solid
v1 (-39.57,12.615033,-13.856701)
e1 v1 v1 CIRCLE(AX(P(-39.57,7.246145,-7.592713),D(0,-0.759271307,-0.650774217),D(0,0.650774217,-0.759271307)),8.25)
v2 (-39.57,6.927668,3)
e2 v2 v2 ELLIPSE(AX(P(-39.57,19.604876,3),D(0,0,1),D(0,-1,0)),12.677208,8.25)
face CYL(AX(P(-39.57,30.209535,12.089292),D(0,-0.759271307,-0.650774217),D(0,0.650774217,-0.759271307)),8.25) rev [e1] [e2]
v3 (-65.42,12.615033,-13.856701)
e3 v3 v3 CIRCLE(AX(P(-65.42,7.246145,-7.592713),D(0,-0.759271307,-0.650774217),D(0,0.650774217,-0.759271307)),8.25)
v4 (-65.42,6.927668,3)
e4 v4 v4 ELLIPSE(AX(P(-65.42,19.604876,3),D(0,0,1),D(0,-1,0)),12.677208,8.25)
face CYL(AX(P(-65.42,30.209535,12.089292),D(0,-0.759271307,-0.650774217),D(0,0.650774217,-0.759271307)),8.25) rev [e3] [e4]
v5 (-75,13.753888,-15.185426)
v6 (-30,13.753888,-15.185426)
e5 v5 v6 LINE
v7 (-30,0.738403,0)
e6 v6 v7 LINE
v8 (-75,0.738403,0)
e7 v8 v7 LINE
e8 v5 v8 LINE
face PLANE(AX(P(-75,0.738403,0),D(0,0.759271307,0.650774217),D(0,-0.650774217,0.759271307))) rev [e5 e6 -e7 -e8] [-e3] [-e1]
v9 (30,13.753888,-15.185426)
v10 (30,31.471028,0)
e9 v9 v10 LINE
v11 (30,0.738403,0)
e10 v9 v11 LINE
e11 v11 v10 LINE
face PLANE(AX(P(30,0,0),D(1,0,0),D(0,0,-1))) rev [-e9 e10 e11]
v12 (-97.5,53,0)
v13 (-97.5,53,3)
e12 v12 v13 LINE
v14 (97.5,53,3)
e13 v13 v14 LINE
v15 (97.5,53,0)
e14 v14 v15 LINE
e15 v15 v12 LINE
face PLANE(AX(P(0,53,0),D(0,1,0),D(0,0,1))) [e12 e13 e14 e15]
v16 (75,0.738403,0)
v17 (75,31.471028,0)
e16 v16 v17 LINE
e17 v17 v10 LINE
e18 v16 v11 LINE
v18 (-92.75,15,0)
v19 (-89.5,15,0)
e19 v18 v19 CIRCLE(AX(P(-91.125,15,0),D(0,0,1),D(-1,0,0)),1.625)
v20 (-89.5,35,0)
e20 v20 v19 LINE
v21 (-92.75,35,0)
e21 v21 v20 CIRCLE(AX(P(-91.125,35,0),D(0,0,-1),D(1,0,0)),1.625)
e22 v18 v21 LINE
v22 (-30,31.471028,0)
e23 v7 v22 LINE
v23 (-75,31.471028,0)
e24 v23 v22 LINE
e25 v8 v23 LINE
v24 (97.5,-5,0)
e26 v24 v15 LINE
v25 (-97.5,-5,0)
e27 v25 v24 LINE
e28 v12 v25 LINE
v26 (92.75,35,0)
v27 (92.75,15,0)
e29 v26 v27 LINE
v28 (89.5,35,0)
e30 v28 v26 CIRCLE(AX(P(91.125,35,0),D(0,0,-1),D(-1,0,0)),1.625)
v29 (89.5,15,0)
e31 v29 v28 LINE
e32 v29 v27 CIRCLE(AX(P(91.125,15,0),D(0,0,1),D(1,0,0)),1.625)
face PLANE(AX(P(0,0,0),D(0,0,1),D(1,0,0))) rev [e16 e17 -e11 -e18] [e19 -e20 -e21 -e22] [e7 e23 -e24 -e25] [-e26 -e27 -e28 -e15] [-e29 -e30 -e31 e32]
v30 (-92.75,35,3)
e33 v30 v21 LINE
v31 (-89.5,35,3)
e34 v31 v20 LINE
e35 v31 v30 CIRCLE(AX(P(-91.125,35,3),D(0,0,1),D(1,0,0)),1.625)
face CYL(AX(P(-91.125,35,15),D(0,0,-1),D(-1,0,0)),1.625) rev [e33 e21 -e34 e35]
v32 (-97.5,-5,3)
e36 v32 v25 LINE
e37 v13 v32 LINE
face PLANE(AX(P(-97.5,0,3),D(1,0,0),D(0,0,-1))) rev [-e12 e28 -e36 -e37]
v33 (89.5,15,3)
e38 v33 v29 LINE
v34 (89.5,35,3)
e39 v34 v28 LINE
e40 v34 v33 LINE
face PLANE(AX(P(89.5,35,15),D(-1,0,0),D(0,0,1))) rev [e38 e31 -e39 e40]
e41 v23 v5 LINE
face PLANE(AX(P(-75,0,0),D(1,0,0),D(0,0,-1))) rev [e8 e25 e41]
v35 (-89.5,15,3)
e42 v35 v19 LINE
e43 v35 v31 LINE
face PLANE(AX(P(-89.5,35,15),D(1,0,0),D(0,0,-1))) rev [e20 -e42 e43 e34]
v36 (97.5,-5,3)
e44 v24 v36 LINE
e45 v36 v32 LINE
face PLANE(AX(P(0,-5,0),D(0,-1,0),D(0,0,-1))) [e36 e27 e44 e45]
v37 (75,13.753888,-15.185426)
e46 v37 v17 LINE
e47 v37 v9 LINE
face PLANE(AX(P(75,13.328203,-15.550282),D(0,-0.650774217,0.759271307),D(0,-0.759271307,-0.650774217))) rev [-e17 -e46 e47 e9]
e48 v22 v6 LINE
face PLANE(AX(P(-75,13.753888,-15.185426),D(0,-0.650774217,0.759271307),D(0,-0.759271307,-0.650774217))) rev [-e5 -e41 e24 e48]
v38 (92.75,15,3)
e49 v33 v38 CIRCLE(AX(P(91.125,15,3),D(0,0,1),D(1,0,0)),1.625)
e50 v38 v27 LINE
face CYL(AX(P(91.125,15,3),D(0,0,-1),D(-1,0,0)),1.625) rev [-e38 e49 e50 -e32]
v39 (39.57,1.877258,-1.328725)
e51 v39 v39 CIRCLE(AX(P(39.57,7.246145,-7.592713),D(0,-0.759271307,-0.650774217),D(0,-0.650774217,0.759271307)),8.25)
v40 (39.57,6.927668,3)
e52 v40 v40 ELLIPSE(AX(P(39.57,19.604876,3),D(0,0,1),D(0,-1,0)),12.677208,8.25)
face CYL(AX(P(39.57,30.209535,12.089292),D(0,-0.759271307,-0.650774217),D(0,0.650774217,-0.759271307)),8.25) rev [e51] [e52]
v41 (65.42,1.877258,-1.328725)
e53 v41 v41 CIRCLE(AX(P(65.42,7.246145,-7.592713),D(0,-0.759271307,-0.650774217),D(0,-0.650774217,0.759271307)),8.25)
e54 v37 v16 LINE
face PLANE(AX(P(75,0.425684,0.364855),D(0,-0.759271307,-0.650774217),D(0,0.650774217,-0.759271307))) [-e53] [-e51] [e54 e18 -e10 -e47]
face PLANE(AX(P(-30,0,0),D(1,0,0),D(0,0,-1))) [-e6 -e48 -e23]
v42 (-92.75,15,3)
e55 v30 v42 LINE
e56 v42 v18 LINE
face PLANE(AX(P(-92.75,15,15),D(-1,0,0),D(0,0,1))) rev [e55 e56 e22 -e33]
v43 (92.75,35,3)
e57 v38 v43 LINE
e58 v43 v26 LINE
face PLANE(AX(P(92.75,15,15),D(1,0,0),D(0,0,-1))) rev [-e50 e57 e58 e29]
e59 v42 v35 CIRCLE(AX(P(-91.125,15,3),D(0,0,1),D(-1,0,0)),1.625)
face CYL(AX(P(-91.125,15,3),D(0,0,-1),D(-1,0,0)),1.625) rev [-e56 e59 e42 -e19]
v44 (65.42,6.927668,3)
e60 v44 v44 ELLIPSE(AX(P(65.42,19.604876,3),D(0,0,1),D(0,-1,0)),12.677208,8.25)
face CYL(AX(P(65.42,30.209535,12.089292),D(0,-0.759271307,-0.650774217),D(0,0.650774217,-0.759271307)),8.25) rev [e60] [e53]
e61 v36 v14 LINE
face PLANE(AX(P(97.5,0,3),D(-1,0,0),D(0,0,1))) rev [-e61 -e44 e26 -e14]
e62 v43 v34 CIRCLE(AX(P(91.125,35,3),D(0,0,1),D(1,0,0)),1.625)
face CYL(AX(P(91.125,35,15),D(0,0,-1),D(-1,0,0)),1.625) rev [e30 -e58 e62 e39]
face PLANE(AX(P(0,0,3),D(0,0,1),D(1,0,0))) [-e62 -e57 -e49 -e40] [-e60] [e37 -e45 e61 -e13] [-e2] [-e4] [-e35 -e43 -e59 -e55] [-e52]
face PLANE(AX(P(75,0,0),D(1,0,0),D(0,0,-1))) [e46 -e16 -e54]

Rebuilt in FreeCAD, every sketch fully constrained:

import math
import FreeCAD as App
import Part
import Sketcher
from FreeCAD import Vector
Q = App.Units.Quantity

doc = App.newDocument("Part")
body = doc.addObject("PartDesign::Body", "Body")

sketch1 = body.newObject("Sketcher::SketchObject", "Sketch")
sketch1.AttachmentSupport = (doc.getObject("XY_Plane"), [""])
sketch1.MapMode = "FlatFace"
sketch1.addGeometry(Part.LineSegment(Vector(-97.5, 38, 0), Vector(-97.5, 0, 0)), False)
sketch1.addGeometry(Part.LineSegment(Vector(-97.5, 0, 0), Vector(97.5, 0, 0)), False)
sketch1.addGeometry(Part.LineSegment(Vector(97.5, 0, 0), Vector(97.5, 38, 0)), False)
sketch1.addGeometry(Part.LineSegment(Vector(97.5, 38, 0), Vector(-97.5, 38, 0)), False)
sketch1.addGeometry(Part.Circle(Vector(-91.1, 15, 0), Vector(0, 0, 1), 1.6), False)
sketch1.addGeometry(Part.Circle(Vector(91.1, 15, 0), Vector(0, 0, 1), 1.6), False)
sketch1.addConstraint(Sketcher.Constraint("Coincident", 0, 2, 1, 1))
sketch1.addConstraint(Sketcher.Constraint("Coincident", 1, 2, 2, 1))
sketch1.addConstraint(Sketcher.Constraint("Coincident", 2, 2, 3, 1))
sketch1.addConstraint(Sketcher.Constraint("Coincident", 3, 2, 0, 1))
sketch1.addConstraint(Sketcher.Constraint("Vertical", 0))
sketch1.addConstraint(Sketcher.Constraint("Horizontal", 1))
sketch1.addConstraint(Sketcher.Constraint("Vertical", 2))
sketch1.addConstraint(Sketcher.Constraint("Horizontal", 3))
sketch1.addConstraint(Sketcher.Constraint("Equal", 4, 5))
sketch1.addConstraint(Sketcher.Constraint("Symmetric", 0, 2, 1, 2, -1, 1))
sketch1.addConstraint(Sketcher.Constraint("Symmetric", 4, 3, 5, 3, -2))
sketch1.addConstraint(Sketcher.Constraint("Diameter", 4, 3.25))
sketch1.addConstraint(Sketcher.Constraint("DistanceX", 1, 1, 1, 2, 195.0))
sketch1.addConstraint(Sketcher.Constraint("DistanceY", 0, 2, 0, 1, 38.0))
sketch1.addConstraint(Sketcher.Constraint("DistanceY", -1, 1, 4, 3, 15.0))
sketch1.addConstraint(Sketcher.Constraint("DistanceX", 4, 3, 5, 3, 182.25))
pad1 = body.newObject("PartDesign::Pad", "Pad")
pad1.Profile = sketch1
pad1.Length = 3

sketch2 = body.newObject("Sketcher::SketchObject", "Sketch001")
sketch2.AttachmentSupport = (doc.getObject("YZ_Plane"), [""])
sketch2.MapMode = "FlatFace"
sketch2.AttachmentOffset = App.Placement(Vector(0, 0, 30), App.Rotation())
sketch2.addGeometry(Part.LineSegment(Vector(0.7, 0, 0), Vector(3.7, -3.4, 0)), False)
sketch2.addGeometry(Part.LineSegment(Vector(3.7, -3.4, 0), Vector(13.8, -15.2, 0)), False)
sketch2.addGeometry(Part.LineSegment(Vector(13.8, -15.2, 0), Vector(31.5, 0, 0)), False)
sketch2.addGeometry(Part.LineSegment(Vector(31.5, 0, 0), Vector(0.7, 0, 0)), False)
sketch2.addConstraint(Sketcher.Constraint("Coincident", 0, 2, 1, 1))
sketch2.addConstraint(Sketcher.Constraint("Coincident", 1, 2, 2, 1))
sketch2.addConstraint(Sketcher.Constraint("Coincident", 2, 2, 3, 1))
sketch2.addConstraint(Sketcher.Constraint("Coincident", 3, 2, 0, 1))
sketch2.addConstraint(Sketcher.Constraint("Horizontal", 3))
sketch2.addConstraint(Sketcher.Constraint("PointOnObject", 2, 2, -1))
sketch2.addConstraint(Sketcher.Constraint("Parallel", 0, 1))
sketch2.addConstraint(Sketcher.Constraint("Perpendicular", 1, 2))
sketch2.addConstraint(Sketcher.Constraint("Angle", 0, Q("-49.4 deg")))
sketch2.addConstraint(Sketcher.Constraint("Distance", 2, 23.3344))
sketch2.addConstraint(Sketcher.Constraint("DistanceX", -1, 1, 2, 2, 31.471028))
sketch2.addConstraint(Sketcher.Constraint("DistanceX", 0, 2, 1, 2, 10.075991))
pad2 = body.newObject("PartDesign::Pad", "Pad001")
pad2.Profile = sketch2
pad2.Length = 45

sketch3 = body.newObject("Sketcher::SketchObject", "Sketch002")
sketch3.AttachmentSupport = (doc.getObject("YZ_Plane"), [""])
sketch3.MapMode = "FlatFace"
sketch3.AttachmentOffset = App.Placement(Vector(0, 0, -30), App.Rotation())
sketch3.addGeometry(Part.LineSegment(Vector(14, -15, 0), Vector(1, 0, 0)), False)
sketch3.addGeometry(Part.LineSegment(Vector(1, 0, 0), Vector(31, 0, 0)), False)
sketch3.addGeometry(Part.LineSegment(Vector(31, 0, 0), Vector(14, -15, 0)), False)
sketch3.addConstraint(Sketcher.Constraint("Coincident", 0, 2, 1, 1))
sketch3.addConstraint(Sketcher.Constraint("Coincident", 1, 2, 2, 1))
sketch3.addConstraint(Sketcher.Constraint("Coincident", 2, 2, 0, 1))
sketch3.addConstraint(Sketcher.Constraint("Horizontal", 1))
sketch3.addConstraint(Sketcher.Constraint("PointOnObject", 0, 2, -1))
sketch3.addConstraint(Sketcher.Constraint("Perpendicular", 0, 2))
sketch3.addConstraint(Sketcher.Constraint("Distance", 0, 20.0))
sketch3.addConstraint(Sketcher.Constraint("Angle", 0, Q("130.6 deg")))
sketch3.addConstraint(Sketcher.Constraint("DistanceX", -1, 1, 1, 2, 31.471028))
pad3 = body.newObject("PartDesign::Pad", "Pad002")
pad3.Profile = sketch3
pad3.Length = 45
pad3.Reversed = True

sketch4 = body.newObject("Sketcher::SketchObject", "Sketch003")
sketch4.AttachmentSupport = (doc.getObject("XZ_Plane"), [""])
sketch4.MapMode = "FlatFace"
sketch4.addGeometry(Part.LineSegment(Vector(-97.5, 3, 0), Vector(-97.5, 0, 0)), False)
sketch4.addGeometry(Part.LineSegment(Vector(-97.5, 0, 0), Vector(97.5, 0, 0)), False)
sketch4.addGeometry(Part.LineSegment(Vector(97.5, 0, 0), Vector(97.5, 3, 0)), False)
sketch4.addGeometry(Part.LineSegment(Vector(97.5, 3, 0), Vector(-97.5, 3, 0)), False)
sketch4.addConstraint(Sketcher.Constraint("Coincident", 0, 2, 1, 1))
sketch4.addConstraint(Sketcher.Constraint("Coincident", 1, 2, 2, 1))
sketch4.addConstraint(Sketcher.Constraint("Coincident", 2, 2, 3, 1))
sketch4.addConstraint(Sketcher.Constraint("Coincident", 3, 2, 0, 1))
sketch4.addConstraint(Sketcher.Constraint("Vertical", 0))
sketch4.addConstraint(Sketcher.Constraint("Horizontal", 1))
sketch4.addConstraint(Sketcher.Constraint("Vertical", 2))
sketch4.addConstraint(Sketcher.Constraint("Horizontal", 3))
sketch4.addConstraint(Sketcher.Constraint("Symmetric", 0, 2, 1, 2, -1, 1))
sketch4.addConstraint(Sketcher.Constraint("DistanceX", 1, 1, 1, 2, 195.0))
sketch4.addConstraint(Sketcher.Constraint("DistanceY", 0, 2, 0, 1, 3.0))
pad4 = body.newObject("PartDesign::Pad", "Pad003")
pad4.Profile = sketch4
pad4.Length = 5

sketch5 = body.newObject("Sketcher::SketchObject", "Sketch004")
sketch5.Placement = App.Placement(Vector(0, 0.425684, 0.364855), App.Rotation(Vector(1, 0, 0), Vector(0, -0.650774217, 0.759271307), Vector(0, -0.759271307, -0.650774217), "ZXY"))
sketch5.addGeometry(Part.Circle(Vector(-65, -10, 0), Vector(0, 0, 1), 8), False)
sketch5.addGeometry(Part.Circle(Vector(-40, -10, 0), Vector(0, 0, 1), 8), False)
sketch5.addGeometry(Part.Circle(Vector(40, -10, 0), Vector(0, 0, 1), 8), False)
sketch5.addGeometry(Part.Circle(Vector(65, -10, 0), Vector(0, 0, 1), 8), False)
sketch5.addConstraint(Sketcher.Constraint("Equal", 0, 1))
sketch5.addConstraint(Sketcher.Constraint("Equal", 1, 2))
sketch5.addConstraint(Sketcher.Constraint("Equal", 2, 3))
sketch5.addConstraint(Sketcher.Constraint("Symmetric", 1, 3, 2, 3, -2))
sketch5.addConstraint(Sketcher.Constraint("Symmetric", 0, 3, 3, 3, -2))
sketch5.addConstraint(Sketcher.Constraint("Horizontal", 0, 3, 1, 3))
sketch5.addConstraint(Sketcher.Constraint("Diameter", 0, 16.5))
sketch5.addConstraint(Sketcher.Constraint("DistanceX", 0, 3, -1, 1, 65.42))
sketch5.addConstraint(Sketcher.Constraint("DistanceX", 1, 3, -1, 1, 39.57))
sketch5.addConstraint(Sketcher.Constraint("DistanceY", 0, 3, -1, 1, 10.480534))
pocket1 = body.newObject("PartDesign::Pocket", "Pocket")
pocket1.Profile = sketch5
pocket1.Type = "ThroughAll"

sketch6 = body.newObject("Sketcher::SketchObject", "Sketch005")
sketch6.AttachmentSupport = (doc.getObject("XZ_Plane"), [""])
sketch6.MapMode = "FlatFace"
sketch6.AttachmentOffset = App.Placement(Vector(0, 0, -38), App.Rotation())
sketch6.addGeometry(Part.LineSegment(Vector(-97.5, 0, 0), Vector(-97.5, 3, 0)), False)
sketch6.addGeometry(Part.LineSegment(Vector(-97.5, 3, 0), Vector(97.5, 3, 0)), False)
sketch6.addGeometry(Part.LineSegment(Vector(97.5, 3, 0), Vector(97.5, 0, 0)), False)
sketch6.addGeometry(Part.LineSegment(Vector(97.5, 0, 0), Vector(-97.5, 0, 0)), False)
sketch6.addConstraint(Sketcher.Constraint("Coincident", 0, 2, 1, 1))
sketch6.addConstraint(Sketcher.Constraint("Coincident", 1, 2, 2, 1))
sketch6.addConstraint(Sketcher.Constraint("Coincident", 2, 2, 3, 1))
sketch6.addConstraint(Sketcher.Constraint("Coincident", 3, 2, 0, 1))
sketch6.addConstraint(Sketcher.Constraint("Vertical", 0))
sketch6.addConstraint(Sketcher.Constraint("Horizontal", 1))
sketch6.addConstraint(Sketcher.Constraint("Vertical", 2))
sketch6.addConstraint(Sketcher.Constraint("Horizontal", 3))
sketch6.addConstraint(Sketcher.Constraint("Symmetric", 2, 2, 3, 2, -1, 1))
sketch6.addConstraint(Sketcher.Constraint("DistanceX", 1, 1, 1, 2, 195.0))
sketch6.addConstraint(Sketcher.Constraint("DistanceY", 0, 1, 0, 2, 3.0))
pad5 = body.newObject("PartDesign::Pad", "Pad004")
pad5.Profile = sketch6
pad5.Length = 15
pad5.Reversed = True

sketch7 = body.newObject("Sketcher::SketchObject", "Sketch006")
sketch7.AttachmentSupport = (doc.getObject("XY_Plane"), [""])
sketch7.MapMode = "FlatFace"
sketch7.addGeometry(Part.LineSegment(Vector(92.8, 35, 0), Vector(92.8, 15, 0)), False)
sketch7.addGeometry(Part.ArcOfCircle(Part.Circle(Vector(91.1, 15, 0), Vector(0, 0, 1), 1.6), math.radians(180), math.radians(360)), False)
sketch7.addGeometry(Part.LineSegment(Vector(89.5, 15, 0), Vector(89.5, 35, 0)), False)
sketch7.addGeometry(Part.ArcOfCircle(Part.Circle(Vector(91.1, 35, 0), Vector(0, 0, 1), 1.6), math.radians(0), math.radians(180)), False)
sketch7.addGeometry(Part.LineSegment(Vector(-89.5, 35, 0), Vector(-89.5, 15, 0)), False)
sketch7.addGeometry(Part.ArcOfCircle(Part.Circle(Vector(-91.1, 15, 0), Vector(0, 0, 1), 1.6), math.radians(180), math.radians(360)), False)
sketch7.addGeometry(Part.LineSegment(Vector(-92.8, 15, 0), Vector(-92.8, 35, 0)), False)
sketch7.addGeometry(Part.ArcOfCircle(Part.Circle(Vector(-91.1, 35, 0), Vector(0, 0, 1), 1.6), math.radians(0), math.radians(180)), False)
sketch7.addConstraint(Sketcher.Constraint("Tangent", 0, 2, 1, 2))
sketch7.addConstraint(Sketcher.Constraint("Tangent", 1, 1, 2, 1))
sketch7.addConstraint(Sketcher.Constraint("Tangent", 2, 2, 3, 2))
sketch7.addConstraint(Sketcher.Constraint("Tangent", 3, 1, 0, 1))
sketch7.addConstraint(Sketcher.Constraint("Tangent", 4, 2, 5, 2))
sketch7.addConstraint(Sketcher.Constraint("Tangent", 5, 1, 6, 1))
sketch7.addConstraint(Sketcher.Constraint("Tangent", 6, 2, 7, 2))
sketch7.addConstraint(Sketcher.Constraint("Tangent", 7, 1, 4, 1))
sketch7.addConstraint(Sketcher.Constraint("Vertical", 0))
sketch7.addConstraint(Sketcher.Constraint("Vertical", 2))
sketch7.addConstraint(Sketcher.Constraint("Vertical", 4))
sketch7.addConstraint(Sketcher.Constraint("Vertical", 6))
sketch7.addConstraint(Sketcher.Constraint("Equal", 3, 5))
sketch7.addConstraint(Sketcher.Constraint("Symmetric", 1, 3, 5, 3, -2))
sketch7.addConstraint(Sketcher.Constraint("Horizontal", 3, 3, 7, 3))
sketch7.addConstraint(Sketcher.Constraint("DistanceY", 0, 2, 0, 1, 20.0))
sketch7.addConstraint(Sketcher.Constraint("DistanceY", -1, 1, 1, 3, 15.0))
sketch7.addConstraint(Sketcher.Constraint("Radius", 1, 1.625))
sketch7.addConstraint(Sketcher.Constraint("DistanceX", 4, 2, 1, 1, 179.0))
pocket2 = body.newObject("PartDesign::Pocket", "Pocket001")
pocket2.Profile = sketch7
pocket2.Length = 15
pocket2.Reversed = True

doc.recompute()
